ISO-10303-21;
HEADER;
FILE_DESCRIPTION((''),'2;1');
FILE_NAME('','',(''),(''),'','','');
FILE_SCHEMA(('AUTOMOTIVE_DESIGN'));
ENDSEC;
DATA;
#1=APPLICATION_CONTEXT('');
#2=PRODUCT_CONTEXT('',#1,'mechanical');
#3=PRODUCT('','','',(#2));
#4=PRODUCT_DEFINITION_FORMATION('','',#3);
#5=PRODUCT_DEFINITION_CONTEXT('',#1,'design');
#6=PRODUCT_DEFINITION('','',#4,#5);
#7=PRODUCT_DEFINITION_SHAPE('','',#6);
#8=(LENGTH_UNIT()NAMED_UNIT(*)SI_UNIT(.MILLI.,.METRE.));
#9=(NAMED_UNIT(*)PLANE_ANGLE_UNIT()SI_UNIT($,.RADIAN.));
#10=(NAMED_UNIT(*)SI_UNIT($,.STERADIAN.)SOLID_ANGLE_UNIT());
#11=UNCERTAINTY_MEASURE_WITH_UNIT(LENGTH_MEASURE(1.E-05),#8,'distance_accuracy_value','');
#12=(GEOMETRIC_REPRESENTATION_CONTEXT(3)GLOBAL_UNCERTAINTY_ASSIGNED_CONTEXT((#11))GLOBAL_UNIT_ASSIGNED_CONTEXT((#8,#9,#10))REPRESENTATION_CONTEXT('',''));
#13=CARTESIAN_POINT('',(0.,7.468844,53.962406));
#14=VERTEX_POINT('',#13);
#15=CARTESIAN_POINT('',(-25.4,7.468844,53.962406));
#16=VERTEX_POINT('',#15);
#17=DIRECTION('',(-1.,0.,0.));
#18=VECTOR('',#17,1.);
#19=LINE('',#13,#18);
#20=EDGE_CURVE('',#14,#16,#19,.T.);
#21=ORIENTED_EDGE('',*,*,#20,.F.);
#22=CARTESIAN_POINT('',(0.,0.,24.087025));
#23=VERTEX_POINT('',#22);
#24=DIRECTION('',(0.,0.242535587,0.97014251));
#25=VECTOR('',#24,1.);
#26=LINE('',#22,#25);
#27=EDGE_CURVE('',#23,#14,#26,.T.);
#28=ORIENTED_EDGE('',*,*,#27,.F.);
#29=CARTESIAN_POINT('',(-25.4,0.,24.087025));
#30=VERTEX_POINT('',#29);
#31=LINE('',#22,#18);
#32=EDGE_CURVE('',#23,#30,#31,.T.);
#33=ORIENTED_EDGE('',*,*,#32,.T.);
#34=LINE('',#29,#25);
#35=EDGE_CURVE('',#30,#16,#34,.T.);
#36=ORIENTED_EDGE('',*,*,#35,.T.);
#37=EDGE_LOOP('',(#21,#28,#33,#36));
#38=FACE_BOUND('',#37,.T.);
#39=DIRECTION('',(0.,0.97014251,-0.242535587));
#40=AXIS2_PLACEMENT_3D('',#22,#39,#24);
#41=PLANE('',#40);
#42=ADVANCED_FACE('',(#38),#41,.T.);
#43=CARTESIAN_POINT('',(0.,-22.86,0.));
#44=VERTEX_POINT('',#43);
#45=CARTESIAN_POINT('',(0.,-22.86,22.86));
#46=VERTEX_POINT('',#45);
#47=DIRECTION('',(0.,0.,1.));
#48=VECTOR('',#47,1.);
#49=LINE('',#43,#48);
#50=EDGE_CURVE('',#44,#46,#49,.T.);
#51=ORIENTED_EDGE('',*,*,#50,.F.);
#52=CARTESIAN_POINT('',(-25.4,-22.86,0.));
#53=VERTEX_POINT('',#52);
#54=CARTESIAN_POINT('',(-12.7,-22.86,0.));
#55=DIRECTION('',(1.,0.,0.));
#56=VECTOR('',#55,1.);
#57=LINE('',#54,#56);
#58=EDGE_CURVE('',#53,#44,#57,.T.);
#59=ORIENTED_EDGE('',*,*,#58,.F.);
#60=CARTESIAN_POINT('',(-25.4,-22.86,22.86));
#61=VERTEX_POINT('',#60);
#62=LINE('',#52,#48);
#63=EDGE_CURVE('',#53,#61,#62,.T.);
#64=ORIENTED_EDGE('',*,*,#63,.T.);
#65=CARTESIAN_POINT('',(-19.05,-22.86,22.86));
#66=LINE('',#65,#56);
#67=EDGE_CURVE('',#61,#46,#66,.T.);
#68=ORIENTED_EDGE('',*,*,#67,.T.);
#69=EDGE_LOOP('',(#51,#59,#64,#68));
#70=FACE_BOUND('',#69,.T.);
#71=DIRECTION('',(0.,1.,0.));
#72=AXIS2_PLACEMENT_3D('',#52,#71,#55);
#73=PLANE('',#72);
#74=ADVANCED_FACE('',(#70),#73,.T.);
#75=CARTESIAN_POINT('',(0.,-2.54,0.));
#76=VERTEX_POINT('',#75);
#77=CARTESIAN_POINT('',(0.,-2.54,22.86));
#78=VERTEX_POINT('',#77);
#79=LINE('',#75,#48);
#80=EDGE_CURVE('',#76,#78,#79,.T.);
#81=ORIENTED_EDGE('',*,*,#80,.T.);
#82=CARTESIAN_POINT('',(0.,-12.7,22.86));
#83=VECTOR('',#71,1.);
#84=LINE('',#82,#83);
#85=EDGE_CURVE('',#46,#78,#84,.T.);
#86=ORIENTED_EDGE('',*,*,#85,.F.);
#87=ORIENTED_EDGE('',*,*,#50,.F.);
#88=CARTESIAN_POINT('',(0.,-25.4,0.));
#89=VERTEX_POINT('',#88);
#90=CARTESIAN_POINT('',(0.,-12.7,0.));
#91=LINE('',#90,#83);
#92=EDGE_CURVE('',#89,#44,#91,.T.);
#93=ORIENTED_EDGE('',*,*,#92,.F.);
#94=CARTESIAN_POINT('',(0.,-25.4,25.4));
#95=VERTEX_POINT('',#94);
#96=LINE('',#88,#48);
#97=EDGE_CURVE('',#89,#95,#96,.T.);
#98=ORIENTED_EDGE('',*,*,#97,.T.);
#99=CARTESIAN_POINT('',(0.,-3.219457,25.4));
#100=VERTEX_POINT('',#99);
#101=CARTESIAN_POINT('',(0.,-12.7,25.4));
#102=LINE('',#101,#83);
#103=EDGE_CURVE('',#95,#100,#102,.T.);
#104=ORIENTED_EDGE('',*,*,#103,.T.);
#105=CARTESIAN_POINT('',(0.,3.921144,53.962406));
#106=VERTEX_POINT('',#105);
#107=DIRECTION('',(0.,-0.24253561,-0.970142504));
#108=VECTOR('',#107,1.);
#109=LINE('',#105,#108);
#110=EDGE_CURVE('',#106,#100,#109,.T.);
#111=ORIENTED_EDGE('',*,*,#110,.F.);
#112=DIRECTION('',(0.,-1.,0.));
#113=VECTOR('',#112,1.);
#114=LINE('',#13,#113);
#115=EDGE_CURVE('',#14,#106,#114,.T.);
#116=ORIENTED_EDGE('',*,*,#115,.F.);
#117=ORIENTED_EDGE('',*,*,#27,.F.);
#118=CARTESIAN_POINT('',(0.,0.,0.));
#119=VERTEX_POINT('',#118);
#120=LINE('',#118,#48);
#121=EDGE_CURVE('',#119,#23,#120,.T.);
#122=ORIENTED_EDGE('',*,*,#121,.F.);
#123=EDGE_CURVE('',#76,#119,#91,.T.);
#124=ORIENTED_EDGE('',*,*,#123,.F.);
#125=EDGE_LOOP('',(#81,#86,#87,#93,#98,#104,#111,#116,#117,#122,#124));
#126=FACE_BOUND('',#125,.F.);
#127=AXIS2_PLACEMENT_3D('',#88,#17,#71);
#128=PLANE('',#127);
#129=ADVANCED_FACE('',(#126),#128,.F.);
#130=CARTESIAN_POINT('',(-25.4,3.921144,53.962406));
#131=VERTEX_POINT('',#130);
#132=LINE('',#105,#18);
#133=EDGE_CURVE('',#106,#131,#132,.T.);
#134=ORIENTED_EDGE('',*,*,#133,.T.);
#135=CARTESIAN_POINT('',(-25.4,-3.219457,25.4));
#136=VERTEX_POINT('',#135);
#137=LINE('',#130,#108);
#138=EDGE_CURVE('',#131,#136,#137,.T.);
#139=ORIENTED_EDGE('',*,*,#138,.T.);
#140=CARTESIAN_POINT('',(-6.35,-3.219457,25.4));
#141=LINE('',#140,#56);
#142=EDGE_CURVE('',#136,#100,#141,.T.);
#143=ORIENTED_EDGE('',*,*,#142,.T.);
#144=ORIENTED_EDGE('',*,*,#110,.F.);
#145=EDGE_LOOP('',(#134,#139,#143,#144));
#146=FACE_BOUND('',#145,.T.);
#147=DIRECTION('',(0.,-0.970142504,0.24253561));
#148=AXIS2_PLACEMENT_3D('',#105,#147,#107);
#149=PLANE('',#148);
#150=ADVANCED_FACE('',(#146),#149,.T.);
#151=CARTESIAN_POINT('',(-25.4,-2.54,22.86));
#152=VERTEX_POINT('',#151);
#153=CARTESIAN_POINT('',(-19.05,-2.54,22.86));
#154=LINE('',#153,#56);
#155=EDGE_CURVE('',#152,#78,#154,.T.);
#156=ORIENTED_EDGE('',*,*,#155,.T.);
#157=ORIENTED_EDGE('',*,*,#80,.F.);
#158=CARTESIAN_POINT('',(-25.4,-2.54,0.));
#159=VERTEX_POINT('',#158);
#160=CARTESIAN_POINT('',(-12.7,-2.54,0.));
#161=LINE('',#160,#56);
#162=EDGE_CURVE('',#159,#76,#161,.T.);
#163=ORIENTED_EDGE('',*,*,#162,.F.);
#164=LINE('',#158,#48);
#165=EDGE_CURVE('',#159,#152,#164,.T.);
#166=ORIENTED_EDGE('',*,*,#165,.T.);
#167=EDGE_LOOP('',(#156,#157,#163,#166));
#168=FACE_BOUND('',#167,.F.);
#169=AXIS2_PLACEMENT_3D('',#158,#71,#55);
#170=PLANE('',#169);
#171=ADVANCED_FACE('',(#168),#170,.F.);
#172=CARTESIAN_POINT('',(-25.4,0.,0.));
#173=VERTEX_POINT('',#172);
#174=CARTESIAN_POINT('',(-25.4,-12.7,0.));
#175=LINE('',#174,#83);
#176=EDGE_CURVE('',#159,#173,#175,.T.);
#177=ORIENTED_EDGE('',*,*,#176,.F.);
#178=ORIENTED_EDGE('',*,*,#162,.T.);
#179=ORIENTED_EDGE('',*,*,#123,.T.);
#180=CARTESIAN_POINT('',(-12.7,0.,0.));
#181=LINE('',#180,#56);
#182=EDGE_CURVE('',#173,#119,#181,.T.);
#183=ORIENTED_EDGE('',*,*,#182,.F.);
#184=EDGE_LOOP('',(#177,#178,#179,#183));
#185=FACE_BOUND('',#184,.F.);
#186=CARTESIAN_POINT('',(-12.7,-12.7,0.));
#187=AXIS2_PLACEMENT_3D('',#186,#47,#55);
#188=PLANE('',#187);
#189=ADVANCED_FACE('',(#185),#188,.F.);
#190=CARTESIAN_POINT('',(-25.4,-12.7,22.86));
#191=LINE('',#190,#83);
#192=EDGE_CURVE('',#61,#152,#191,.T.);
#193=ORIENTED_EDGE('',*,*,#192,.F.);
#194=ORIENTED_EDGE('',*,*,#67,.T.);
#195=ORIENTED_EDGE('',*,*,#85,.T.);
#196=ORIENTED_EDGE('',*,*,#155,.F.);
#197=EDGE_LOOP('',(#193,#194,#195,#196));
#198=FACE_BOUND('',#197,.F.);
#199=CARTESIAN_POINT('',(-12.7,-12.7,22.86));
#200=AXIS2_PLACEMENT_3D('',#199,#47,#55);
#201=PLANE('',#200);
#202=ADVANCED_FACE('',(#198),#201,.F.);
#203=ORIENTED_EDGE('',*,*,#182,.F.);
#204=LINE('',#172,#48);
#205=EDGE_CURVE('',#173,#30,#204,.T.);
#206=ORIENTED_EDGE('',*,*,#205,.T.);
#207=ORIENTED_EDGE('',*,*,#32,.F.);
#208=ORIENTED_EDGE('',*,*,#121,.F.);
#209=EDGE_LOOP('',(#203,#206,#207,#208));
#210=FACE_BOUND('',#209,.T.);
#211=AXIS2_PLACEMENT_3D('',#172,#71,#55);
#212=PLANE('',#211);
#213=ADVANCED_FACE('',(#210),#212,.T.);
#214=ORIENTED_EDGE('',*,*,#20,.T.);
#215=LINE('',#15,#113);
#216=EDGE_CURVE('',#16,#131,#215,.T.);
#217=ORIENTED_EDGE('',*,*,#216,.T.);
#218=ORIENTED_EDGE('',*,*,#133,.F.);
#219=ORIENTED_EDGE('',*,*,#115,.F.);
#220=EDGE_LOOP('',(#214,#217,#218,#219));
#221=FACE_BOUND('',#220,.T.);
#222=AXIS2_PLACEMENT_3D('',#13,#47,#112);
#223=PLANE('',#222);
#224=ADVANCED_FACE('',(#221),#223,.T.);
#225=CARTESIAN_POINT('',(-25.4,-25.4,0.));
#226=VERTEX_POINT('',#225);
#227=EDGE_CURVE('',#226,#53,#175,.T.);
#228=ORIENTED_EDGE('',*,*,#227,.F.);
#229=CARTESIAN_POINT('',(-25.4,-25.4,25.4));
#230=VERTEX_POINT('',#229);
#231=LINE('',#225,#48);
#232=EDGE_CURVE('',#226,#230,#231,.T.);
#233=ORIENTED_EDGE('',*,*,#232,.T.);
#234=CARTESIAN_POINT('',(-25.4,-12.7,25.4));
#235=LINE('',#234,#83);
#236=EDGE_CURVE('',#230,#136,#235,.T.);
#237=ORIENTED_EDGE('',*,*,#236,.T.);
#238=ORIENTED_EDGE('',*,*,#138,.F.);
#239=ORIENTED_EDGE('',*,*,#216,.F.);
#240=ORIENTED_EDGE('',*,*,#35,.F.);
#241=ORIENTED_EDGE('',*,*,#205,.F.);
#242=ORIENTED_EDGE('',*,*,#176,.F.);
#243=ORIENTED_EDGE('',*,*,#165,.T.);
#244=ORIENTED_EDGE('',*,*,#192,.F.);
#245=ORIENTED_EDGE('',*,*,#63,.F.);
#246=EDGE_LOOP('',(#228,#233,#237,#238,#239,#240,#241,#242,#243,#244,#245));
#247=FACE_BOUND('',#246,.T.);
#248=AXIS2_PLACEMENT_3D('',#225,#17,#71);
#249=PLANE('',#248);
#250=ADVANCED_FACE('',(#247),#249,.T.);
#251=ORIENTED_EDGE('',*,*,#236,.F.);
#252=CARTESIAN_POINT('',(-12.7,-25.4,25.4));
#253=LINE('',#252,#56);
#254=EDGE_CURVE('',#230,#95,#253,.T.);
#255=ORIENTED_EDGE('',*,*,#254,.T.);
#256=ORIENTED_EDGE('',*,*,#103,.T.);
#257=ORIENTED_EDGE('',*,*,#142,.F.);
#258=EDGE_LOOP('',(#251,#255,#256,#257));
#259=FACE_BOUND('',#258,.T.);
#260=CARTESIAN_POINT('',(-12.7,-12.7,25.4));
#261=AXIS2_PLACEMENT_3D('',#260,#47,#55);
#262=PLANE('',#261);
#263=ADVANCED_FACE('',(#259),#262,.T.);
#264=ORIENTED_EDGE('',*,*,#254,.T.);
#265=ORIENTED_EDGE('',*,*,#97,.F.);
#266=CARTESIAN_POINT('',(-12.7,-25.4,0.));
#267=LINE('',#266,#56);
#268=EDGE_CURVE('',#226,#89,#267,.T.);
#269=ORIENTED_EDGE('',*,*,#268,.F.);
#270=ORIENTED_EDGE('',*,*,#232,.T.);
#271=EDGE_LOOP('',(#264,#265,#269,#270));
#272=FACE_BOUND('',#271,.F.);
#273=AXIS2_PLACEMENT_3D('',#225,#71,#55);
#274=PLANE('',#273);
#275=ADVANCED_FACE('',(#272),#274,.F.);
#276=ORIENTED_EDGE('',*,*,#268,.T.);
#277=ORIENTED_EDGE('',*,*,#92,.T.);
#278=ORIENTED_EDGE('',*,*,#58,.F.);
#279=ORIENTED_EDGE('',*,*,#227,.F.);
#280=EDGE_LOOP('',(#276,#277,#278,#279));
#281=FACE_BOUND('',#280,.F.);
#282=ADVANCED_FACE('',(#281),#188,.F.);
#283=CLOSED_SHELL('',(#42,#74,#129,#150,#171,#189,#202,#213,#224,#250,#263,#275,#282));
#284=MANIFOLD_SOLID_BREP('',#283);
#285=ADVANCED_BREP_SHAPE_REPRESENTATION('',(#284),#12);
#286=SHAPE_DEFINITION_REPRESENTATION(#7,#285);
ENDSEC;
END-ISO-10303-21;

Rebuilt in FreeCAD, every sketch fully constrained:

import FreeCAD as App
import Part
import Sketcher
from FreeCAD import Vector
Q = App.Units.Quantity


def faces_at(feature, points):
    """Names of the faces that lie closest to the given points."""
    faces = feature.Shape.Faces
    near = lambda p: min(range(len(faces)), key=lambda i: faces[i].distToShape(Part.Vertex(*p))[0])
    return sorted({f"Face{near(p) + 1}" for p in points})


def add_polygon(sketch, points):
    """Adds a closed chain of lines whose ends are joined by coincident constraints."""
    first, n = sketch.GeometryCount, len(points)
    for a, b in zip(points, points[1:] + points[:1]):
        sketch.addGeometry(Part.LineSegment(App.Vector(*a, 0), App.Vector(*b, 0)), False)
    for i in range(n):
        sketch.addConstraint(Sketcher.Constraint("Coincident", first + i, 2, first + (i + 1) % n, 1))

doc = App.newDocument("Part")
body = doc.addObject("PartDesign::Body", "Body")

# Sketch on XY plane
sketch1 = doc.addObject("Sketcher::SketchObject", "Sketch")
body.addObject(sketch1)
sketch1.AttachmentSupport = (doc.XY_Plane, [""])
sketch1.MapMode = "FlatFace"
add_polygon(sketch1, [(-25, 0), (-25, -25), (0, -25), (0, 0)])  # lines 0-3
sketch1.addConstraint([
    Sketcher.Constraint("Vertical", 0),
    Sketcher.Constraint("Horizontal", 1),
    Sketcher.Constraint("Vertical", 2),
    Sketcher.Constraint("Horizontal", 3),
    Sketcher.Constraint("Coincident", 2, 2, -1, 1),
    Sketcher.Constraint("Equal", 3, 0),
    Sketcher.Constraint("DistanceX", 1, 1, 1, 2, Q("1 in")),
])
pad1 = doc.addObject("PartDesign::Pad", "Pad")
body.addObject(pad1)
pad1.Profile = sketch1
pad1.Length = Q("1 in")
doc.recompute()

thickness = doc.addObject("PartDesign::Thickness", "Thickness")
body.addObject(thickness)
thickness.Base = (pad1, faces_at(pad1, [(0, -12.7, 12.7), (-25.4, -12.7, 12.7), (-12.7, -12.7, 0)]))
thickness.Value = Q("0.1 in")
thickness.Reversed = True
thickness.Join = "Arc"

# Sketch on YZ plane
sketch2 = doc.addObject("Sketcher::SketchObject", "Sketch001")
body.addObject(sketch2)
sketch2.AttachmentSupport = (doc.YZ_Plane, [""])
sketch2.MapMode = "FlatFace"
add_polygon(sketch2, [(-3.5, 24.2), (0, 24.1), (7.5, 54), (3.9, 54)])  # lines 0-3
sketch2.addConstraint([
    Sketcher.Constraint("Horizontal", 2),
    Sketcher.Constraint("PointOnObject", 0, 2, -2),
    Sketcher.Constraint("Parallel", 1, 3),
    Sketcher.Constraint("DistanceX", 2, 2, 2, 1, Q("3.5477 mm")),
    Sketcher.Constraint("DistanceX", 3, 2, -1, 1, Q("3.526252 mm")),
    Sketcher.Constraint("DistanceY", -1, 1, 3, 2, Q("24.17282 mm")),
    Sketcher.Constraint("DistanceY", 0, 2, 1, 2, Q("29.875381 mm")),
    Sketcher.Constraint("Distance", 1, Q("30.794838 mm")),
])
pad2 = doc.addObject("PartDesign::Pad", "Pad001")
body.addObject(pad2)
pad2.Profile = sketch2
pad2.Length = Q("1 in")
pad2.Reversed = True

doc.recompute()
